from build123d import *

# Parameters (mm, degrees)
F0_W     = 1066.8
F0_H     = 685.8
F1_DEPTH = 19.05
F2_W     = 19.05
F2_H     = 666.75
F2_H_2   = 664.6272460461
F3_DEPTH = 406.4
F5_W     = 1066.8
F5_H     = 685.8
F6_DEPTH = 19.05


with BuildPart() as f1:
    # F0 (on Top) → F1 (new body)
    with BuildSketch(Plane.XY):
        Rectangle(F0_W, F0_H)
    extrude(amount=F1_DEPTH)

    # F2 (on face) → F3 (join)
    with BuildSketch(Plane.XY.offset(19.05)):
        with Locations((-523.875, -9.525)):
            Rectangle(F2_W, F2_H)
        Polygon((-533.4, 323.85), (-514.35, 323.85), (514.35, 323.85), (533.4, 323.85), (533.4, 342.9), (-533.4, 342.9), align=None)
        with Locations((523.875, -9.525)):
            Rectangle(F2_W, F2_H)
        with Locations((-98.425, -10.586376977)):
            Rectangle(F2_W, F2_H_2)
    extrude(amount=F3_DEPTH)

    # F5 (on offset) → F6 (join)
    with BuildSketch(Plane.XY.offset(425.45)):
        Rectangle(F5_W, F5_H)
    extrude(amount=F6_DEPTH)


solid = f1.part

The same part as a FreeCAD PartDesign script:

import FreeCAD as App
import Part
import Sketcher
from FreeCAD import Vector
Q = App.Units.Quantity


def add_polygon(sketch, points):
    """Adds a closed chain of lines whose ends are joined by coincident constraints."""
    first, n = sketch.GeometryCount, len(points)
    for a, b in zip(points, points[1:] + points[:1]):
        sketch.addGeometry(Part.LineSegment(App.Vector(*a, 0), App.Vector(*b, 0)), False)
    for i in range(n):
        sketch.addConstraint(Sketcher.Constraint("Coincident", first + i, 2, first + (i + 1) % n, 1))

doc = App.newDocument("Part")
body = doc.addObject("PartDesign::Body", "Body")

# Sketch on XY plane
sketch1 = body.newObject("Sketcher::SketchObject", "Sketch")
sketch1.AttachmentSupport = (doc.getObject("XY_Plane"), [""])
sketch1.MapMode = "FlatFace"
add_polygon(sketch1, [(-533, 343), (-533, -343), (533, -343), (533, 343)])  # lines 0-3
sketch1.addConstraint([
    Sketcher.Constraint("Vertical", 0),
    Sketcher.Constraint("Horizontal", 1),
    Sketcher.Constraint("Vertical", 2),
    Sketcher.Constraint("Horizontal", 3),
    Sketcher.Constraint("Symmetric", 0, 2, 2, 2, -1, 1),
    Sketcher.Constraint("DistanceX", 1, 1, 1, 2, Q("42 in")),
    Sketcher.Constraint("DistanceY", 0, 2, 0, 1, Q("27 in")),
])
pad1 = body.newObject("PartDesign::Pad", "Pad")
pad1.Profile = sketch1
pad1.Length = Q("0.75 in")

# Sketch on XY plane
sketch2 = body.newObject("Sketcher::SketchObject", "Sketch001")
sketch2.AttachmentSupport = (doc.getObject("XY_Plane"), [""])
sketch2.MapMode = "FlatFace"
sketch2.AttachmentOffset = App.Placement(Vector(0, 0, 0.75 * 25.4), App.Rotation())
add_polygon(sketch2, [(-533, -343), (-514, -343), (-514, 324), (514, 324), (514, -343), (533, -343), (533, 343), (-533, 343)])  # lines 0-7
add_polygon(sketch2, [(-108, 322), (-108, -343), (-89, -343), (-89, 322)])  # lines 8-11
sketch2.addConstraint([
    Sketcher.Constraint("Horizontal", 0),
    Sketcher.Constraint("Vertical", 1),
    Sketcher.Constraint("Horizontal", 2),
    Sketcher.Constraint("Vertical", 3),
    Sketcher.Constraint("Horizontal", 4),
    Sketcher.Constraint("Vertical", 5),
    Sketcher.Constraint("Horizontal", 6),
    Sketcher.Constraint("Vertical", 7),
    Sketcher.Constraint("Vertical", 8),
    Sketcher.Constraint("Horizontal", 9),
    Sketcher.Constraint("Vertical", 10),
    Sketcher.Constraint("Horizontal", 11),
    Sketcher.Constraint("Symmetric", 4, 2, 6, 2, -1, 1),
    Sketcher.Constraint("Symmetric", 0, 2, 3, 2, -2),
    Sketcher.Constraint("Horizontal", 7, 2, 8, 2),
    Sketcher.Constraint("Equal", 4, 9),
    Sketcher.Constraint("DistanceX", 6, 2, 6, 1, Q("42 in")),
    Sketcher.Constraint("DistanceY", 5, 1, 5, 2, Q("27 in")),
    Sketcher.Constraint("DistanceX", 2, 1, 2, 2, Q("40.5 in")),
    Sketcher.Constraint("DistanceX", 0, 2, 8, 2, Q("16 in")),
    Sketcher.Constraint("DistanceY", 1, 1, 1, 2, Q("26.25 in")),
    Sketcher.Constraint("DistanceY", 8, 2, 8, 1, Q("664.627246 mm")),
])
pad2 = body.newObject("PartDesign::Pad", "Pad001")
pad2.Profile = sketch2
pad2.Length = Q("16 in")

# Sketch on XY plane
sketch3 = body.newObject("Sketcher::SketchObject", "Sketch002")
sketch3.AttachmentSupport = (doc.getObject("XY_Plane"), [""])
sketch3.MapMode = "FlatFace"
sketch3.AttachmentOffset = App.Placement(Vector(0, 0, 16.75 * 25.4), App.Rotation())
add_polygon(sketch3, [(-533, 343), (-533, -343), (533, -343), (533, 343)])  # lines 0-3
sketch3.addConstraint([
    Sketcher.Constraint("Vertical", 0),
    Sketcher.Constraint("Horizontal", 1),
    Sketcher.Constraint("Vertical", 2),
    Sketcher.Constraint("Horizontal", 3),
    Sketcher.Constraint("Symmetric", 0, 2, 2, 2, -1, 1),
    Sketcher.Constraint("DistanceX", 1, 1, 1, 2, Q("42 in")),
    Sketcher.Constraint("DistanceY", 0, 2, 0, 1, Q("27 in")),
])
pad3 = body.newObject("PartDesign::Pad", "Pad002")
pad3.Profile = sketch3
pad3.Length = Q("0.75 in")

doc.recompute()
